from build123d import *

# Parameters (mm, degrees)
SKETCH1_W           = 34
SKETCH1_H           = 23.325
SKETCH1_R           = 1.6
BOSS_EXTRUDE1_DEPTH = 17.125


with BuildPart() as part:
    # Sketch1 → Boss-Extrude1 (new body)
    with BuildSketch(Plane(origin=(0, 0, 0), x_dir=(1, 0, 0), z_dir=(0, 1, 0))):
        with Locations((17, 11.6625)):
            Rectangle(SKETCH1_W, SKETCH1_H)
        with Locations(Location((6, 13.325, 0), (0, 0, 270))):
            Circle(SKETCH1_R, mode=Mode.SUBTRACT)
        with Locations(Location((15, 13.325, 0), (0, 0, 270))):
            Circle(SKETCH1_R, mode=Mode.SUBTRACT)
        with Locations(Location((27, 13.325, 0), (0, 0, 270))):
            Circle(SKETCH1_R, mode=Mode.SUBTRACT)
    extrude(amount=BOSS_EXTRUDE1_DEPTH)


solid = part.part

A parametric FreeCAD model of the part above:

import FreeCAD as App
import Part
import Sketcher
Q = App.Units.Quantity

doc = App.newDocument("Part")
params = doc.addObject("Spreadsheet::Sheet", "Params")
for row, (alias, value) in enumerate([
    ("sketch1_diameter", "3.2 mm"),
    ("sketch1_width", "34 mm"),
    ("pad1_length", "17.125 mm"),
], start=1):
    params.set(f"A{row}", alias)
    params.set(f"B{row}", "=" + value)
    params.setAlias(f"B{row}", alias)

body = doc.addObject("PartDesign::Body", "Body")

# Sketch on XZ plane
sketch1 = doc.addObject("Sketcher::SketchObject", "Sketch")
body.addObject(sketch1)
sketch1.AttachmentSupport = (doc.XZ_Plane, [""])
sketch1.MapMode = "FlatFace"
sketch1.addGeometry([
    Part.LineSegment(App.Vector(0, -23.325, 0), App.Vector(0, 0, 0)),  # 0
    Part.LineSegment(App.Vector(0, 0, 0), App.Vector(34, 0, 0)),  # 1
    Part.LineSegment(App.Vector(34, 0, 0), App.Vector(34, -23.325, 0)),  # 2
    Part.LineSegment(App.Vector(34, -23.325, 0), App.Vector(0, -23.325, 0)),  # 3
    Part.Circle(App.Vector(6, -13.325, 0), App.Vector(0, 0, 1), 1.6),  # 4
    Part.Circle(App.Vector(15, -13.325, 0), App.Vector(0, 0, 1), 1.6),  # 5
    Part.Circle(App.Vector(27, -13.325, 0), App.Vector(0, 0, 1), 1.6),  # 6
], False)
sketch1.addConstraint([
    Sketcher.Constraint("Coincident", 0, 2, 1, 1),
    Sketcher.Constraint("Coincident", 1, 2, 2, 1),
    Sketcher.Constraint("Coincident", 2, 2, 3, 1),
    Sketcher.Constraint("Coincident", 3, 2, 0, 1),
    Sketcher.Constraint("Vertical", 0),
    Sketcher.Constraint("Horizontal", 1),
    Sketcher.Constraint("Vertical", 2),
    Sketcher.Constraint("Horizontal", 3),
    Sketcher.Constraint("Coincident", 0, 2, -1, 1),
    Sketcher.Constraint("Equal", 4, 5),
    Sketcher.Constraint("Equal", 5, 6),
    Sketcher.Constraint("Horizontal", 4, 3, 5, 3),
    Sketcher.Constraint("Horizontal", 5, 3, 6, 3),
    Sketcher.Constraint("Diameter", 4, Q("3.2 mm")),
    Sketcher.Constraint("DistanceX", 1, 1, 1, 2, Q("34 mm")),
    Sketcher.Constraint("DistanceX", -1, 1, 4, 3, Q("6 mm")),
    Sketcher.Constraint("DistanceX", -1, 1, 5, 3, Q("15 mm")),
    Sketcher.Constraint("DistanceX", -1, 1, 6, 3, Q("27 mm")),
    Sketcher.Constraint("DistanceY", 2, 2, 6, 3, Q("10 mm")),
    Sketcher.Constraint("DistanceY", 0, 1, 0, 2, Q("23.325 mm")),
])
sketch1.setExpression("Constraints[13]", "Params.sketch1_diameter")
sketch1.setExpression("Constraints[14]", "Params.sketch1_width")
pad1 = doc.addObject("PartDesign::Pad", "Pad")
body.addObject(pad1)
pad1.Profile = sketch1
pad1.setExpression("Length", "Params.pad1_length")
pad1.Reversed = True

doc.recompute()
